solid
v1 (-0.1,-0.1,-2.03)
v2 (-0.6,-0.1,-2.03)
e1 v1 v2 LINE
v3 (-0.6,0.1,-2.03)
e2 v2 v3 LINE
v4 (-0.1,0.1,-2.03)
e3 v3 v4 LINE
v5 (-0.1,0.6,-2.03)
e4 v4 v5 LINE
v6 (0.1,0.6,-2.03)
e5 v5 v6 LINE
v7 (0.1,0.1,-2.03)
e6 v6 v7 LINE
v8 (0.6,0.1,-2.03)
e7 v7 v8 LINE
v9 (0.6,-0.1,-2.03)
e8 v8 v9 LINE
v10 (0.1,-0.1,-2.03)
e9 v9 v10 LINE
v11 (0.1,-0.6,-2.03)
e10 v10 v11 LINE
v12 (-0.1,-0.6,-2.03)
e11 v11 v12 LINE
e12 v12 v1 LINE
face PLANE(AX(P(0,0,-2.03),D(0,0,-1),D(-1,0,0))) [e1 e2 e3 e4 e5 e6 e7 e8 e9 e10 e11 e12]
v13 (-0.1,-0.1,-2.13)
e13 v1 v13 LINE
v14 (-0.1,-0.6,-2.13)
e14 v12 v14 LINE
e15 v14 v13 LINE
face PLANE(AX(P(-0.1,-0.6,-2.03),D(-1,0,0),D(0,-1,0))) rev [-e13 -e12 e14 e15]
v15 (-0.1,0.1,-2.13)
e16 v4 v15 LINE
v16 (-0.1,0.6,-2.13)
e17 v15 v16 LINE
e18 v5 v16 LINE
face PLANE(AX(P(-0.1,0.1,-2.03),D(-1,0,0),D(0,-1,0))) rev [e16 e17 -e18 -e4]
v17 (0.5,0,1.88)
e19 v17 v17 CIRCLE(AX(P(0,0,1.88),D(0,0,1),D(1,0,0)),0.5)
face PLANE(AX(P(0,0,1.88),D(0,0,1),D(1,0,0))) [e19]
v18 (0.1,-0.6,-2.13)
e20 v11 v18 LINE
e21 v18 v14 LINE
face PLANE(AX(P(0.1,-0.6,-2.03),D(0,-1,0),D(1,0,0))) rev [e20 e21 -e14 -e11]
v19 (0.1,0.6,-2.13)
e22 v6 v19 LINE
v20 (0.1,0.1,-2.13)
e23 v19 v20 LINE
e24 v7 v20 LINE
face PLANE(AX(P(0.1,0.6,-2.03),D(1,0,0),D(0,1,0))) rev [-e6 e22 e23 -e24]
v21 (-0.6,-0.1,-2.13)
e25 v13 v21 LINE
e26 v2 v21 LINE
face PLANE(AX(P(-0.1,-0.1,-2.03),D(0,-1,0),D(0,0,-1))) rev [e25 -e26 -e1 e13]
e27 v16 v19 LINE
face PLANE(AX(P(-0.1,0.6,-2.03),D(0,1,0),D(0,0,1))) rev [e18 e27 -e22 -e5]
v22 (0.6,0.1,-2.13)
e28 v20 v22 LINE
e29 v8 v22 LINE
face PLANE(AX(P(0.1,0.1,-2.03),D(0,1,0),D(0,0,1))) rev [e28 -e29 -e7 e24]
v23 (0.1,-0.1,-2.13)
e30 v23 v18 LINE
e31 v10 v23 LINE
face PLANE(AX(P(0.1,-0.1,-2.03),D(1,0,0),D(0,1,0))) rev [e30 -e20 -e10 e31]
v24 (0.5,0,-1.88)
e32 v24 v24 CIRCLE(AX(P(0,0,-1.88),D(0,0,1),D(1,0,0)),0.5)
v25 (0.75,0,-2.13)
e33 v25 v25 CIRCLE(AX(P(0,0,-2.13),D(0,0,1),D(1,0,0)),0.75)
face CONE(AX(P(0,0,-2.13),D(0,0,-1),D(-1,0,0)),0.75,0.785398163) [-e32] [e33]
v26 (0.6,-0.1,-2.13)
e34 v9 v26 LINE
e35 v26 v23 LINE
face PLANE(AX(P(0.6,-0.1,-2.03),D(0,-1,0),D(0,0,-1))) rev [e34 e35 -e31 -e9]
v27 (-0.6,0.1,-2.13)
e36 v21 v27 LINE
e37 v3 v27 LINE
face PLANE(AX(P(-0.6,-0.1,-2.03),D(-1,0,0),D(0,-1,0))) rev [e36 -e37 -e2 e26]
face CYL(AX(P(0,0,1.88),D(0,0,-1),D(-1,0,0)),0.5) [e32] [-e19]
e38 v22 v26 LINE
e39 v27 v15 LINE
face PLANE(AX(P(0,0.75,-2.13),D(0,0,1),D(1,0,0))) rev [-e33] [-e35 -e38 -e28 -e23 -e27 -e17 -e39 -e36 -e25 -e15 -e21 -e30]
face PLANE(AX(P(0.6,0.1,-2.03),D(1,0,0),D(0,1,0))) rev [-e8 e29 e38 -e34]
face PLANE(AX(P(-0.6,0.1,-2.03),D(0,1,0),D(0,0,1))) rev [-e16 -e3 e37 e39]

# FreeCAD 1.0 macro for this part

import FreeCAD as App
import Part
import Sketcher
from FreeCAD import Vector
Q = App.Units.Quantity


def add_polygon(sketch, points):
    """Adds a closed chain of lines whose ends are joined by coincident constraints."""
    first, n = sketch.GeometryCount, len(points)
    for a, b in zip(points, points[1:] + points[:1]):
        sketch.addGeometry(Part.LineSegment(App.Vector(*a, 0), App.Vector(*b, 0)), False)
    for i in range(n):
        sketch.addConstraint(Sketcher.Constraint("Coincident", first + i, 2, first + (i + 1) % n, 1))

doc = App.newDocument("Part")
params = doc.addObject("Spreadsheet::Sheet", "Params")
for row, (alias, value) in enumerate([
    ("sketch1_diameter", "1 mm"),
    ("pad1_length", "3.76 mm"),
    ("sketch2_width", "0.5 mm"),
    ("sketch2_width2", "0.75 mm"),
    ("revolution_angle", "360 deg"),
    ("sketch3_width", "0.5 mm"),
    ("sketch3_width2", "0.2 mm"),
    ("pocket1_length", "0.1 mm"),
], start=1):
    params.set(f"A{row}", alias)
    params.set(f"B{row}", "=" + value)
    params.setAlias(f"B{row}", alias)

body = doc.addObject("PartDesign::Body", "Body")

sketch1 = body.newObject("Sketcher::SketchObject", "Sketch")
sketch1.AttachmentSupport = (doc.getObject("XY_Plane"), [""])
sketch1.MapMode = "FlatFace"
sketch1.addGeometry(Part.Circle(Vector(0, 0, 0), Vector(0, 0, 1), 0.5), False)
sketch1.addConstraint([
    Sketcher.Constraint("Coincident", 0, 3, -1, 1),
    Sketcher.Constraint("Diameter", 0, Q("1 mm")),
])
sketch1.setExpression("Constraints[1]", "Params.sketch1_diameter")
pad1 = body.newObject("PartDesign::Pad", "Pad")
pad1.Profile = sketch1
pad1.setExpression("Length", "Params.pad1_length")
pad1.Midplane = True

sketch2 = body.newObject("Sketcher::SketchObject", "Sketch001")
sketch2.AttachmentSupport = (doc.getObject("YZ_Plane"), [""])
sketch2.MapMode = "FlatFace"
add_polygon(sketch2, [(0.75, -2.13), (0.5, -1.88), (0, -1.88), (0, -2.13)])
sketch2.addConstraint([
    Sketcher.Constraint("Horizontal", 1),
    Sketcher.Constraint("Vertical", 2),
    Sketcher.Constraint("Horizontal", 3),
    Sketcher.Constraint("PointOnObject", 1, 2, -2),
    Sketcher.Constraint("Angle", 0, Q("135 deg")),
    Sketcher.Constraint("DistanceX", 1, 2, 1, 1, Q("0.5 mm")),
    Sketcher.Constraint("DistanceX", 3, 1, 3, 2, Q("0.75 mm")),
    Sketcher.Constraint("DistanceY", 0, 2, -1, 1, Q("1.88 mm")),
])
sketch2.setExpression("Constraints[9]", "Params.sketch2_width")
sketch2.setExpression("Constraints[10]", "Params.sketch2_width2")
revolution = body.newObject("PartDesign::Revolution", "Revolution")
revolution.Profile = sketch2
revolution.ReferenceAxis = (sketch2, ["V_Axis"])
revolution.setExpression("Angle", "Params.revolution_angle")

sketch3 = body.newObject("Sketcher::SketchObject", "Sketch002")
sketch3.AttachmentSupport = (doc.getObject("XY_Plane"), [""])
sketch3.MapMode = "FlatFace"
sketch3.AttachmentOffset = App.Placement(Vector(0, 0, -2.13), App.Rotation())
add_polygon(sketch3, [(0.1, 0.6), (0.1, 0.1), (0.6, 0.1), (0.6, -0.1), (0.1, -0.1), (0.1, -0.6), (-0.1, -0.6), (-0.1, -0.1), (-0.6, -0.1), (-0.6, 0.1), (-0.1, 0.1), (-0.1, 0.6)])
sketch3.addConstraint([
    Sketcher.Constraint("Vertical", 0),
    Sketcher.Constraint("Horizontal", 1),
    Sketcher.Constraint("Vertical", 2),
    Sketcher.Constraint("Horizontal", 3),
    Sketcher.Constraint("Vertical", 4),
    Sketcher.Constraint("Horizontal", 5),
    Sketcher.Constraint("Vertical", 6),
    Sketcher.Constraint("Horizontal", 7),
    Sketcher.Constraint("Vertical", 8),
    Sketcher.Constraint("Horizontal", 9),
    Sketcher.Constraint("Vertical", 10),
    Sketcher.Constraint("Horizontal", 11),
    Sketcher.Constraint("Symmetric", 0, 2, 6, 2, -1, 1),
    Sketcher.Constraint("Symmetric", 2, 2, 8, 2, -1, 1),
    Sketcher.Constraint("Symmetric", 4, 2, 10, 2, -1, 1),
    Sketcher.Constraint("Symmetric", 3, 2, 6, 2, -2),
    Sketcher.Constraint("Equal", 9, 0),
    Sketcher.Constraint("Equal", 11, 2),
    Sketcher.Constraint("DistanceX", 1, 1, 1, 2, Q("0.5 mm")),
    Sketcher.Constraint("DistanceX", 5, 2, 5, 1, Q("0.2 mm")),
])
sketch3.setExpression("Constraints[30]", "Params.sketch3_width")
sketch3.setExpression("Constraints[31]", "Params.sketch3_width2")
pocket1 = body.newObject("PartDesign::Pocket", "Pocket")
pocket1.Profile = sketch3
pocket1.setExpression("Length", "Params.pocket1_length")
pocket1.Reversed = True

doc.recompute()
